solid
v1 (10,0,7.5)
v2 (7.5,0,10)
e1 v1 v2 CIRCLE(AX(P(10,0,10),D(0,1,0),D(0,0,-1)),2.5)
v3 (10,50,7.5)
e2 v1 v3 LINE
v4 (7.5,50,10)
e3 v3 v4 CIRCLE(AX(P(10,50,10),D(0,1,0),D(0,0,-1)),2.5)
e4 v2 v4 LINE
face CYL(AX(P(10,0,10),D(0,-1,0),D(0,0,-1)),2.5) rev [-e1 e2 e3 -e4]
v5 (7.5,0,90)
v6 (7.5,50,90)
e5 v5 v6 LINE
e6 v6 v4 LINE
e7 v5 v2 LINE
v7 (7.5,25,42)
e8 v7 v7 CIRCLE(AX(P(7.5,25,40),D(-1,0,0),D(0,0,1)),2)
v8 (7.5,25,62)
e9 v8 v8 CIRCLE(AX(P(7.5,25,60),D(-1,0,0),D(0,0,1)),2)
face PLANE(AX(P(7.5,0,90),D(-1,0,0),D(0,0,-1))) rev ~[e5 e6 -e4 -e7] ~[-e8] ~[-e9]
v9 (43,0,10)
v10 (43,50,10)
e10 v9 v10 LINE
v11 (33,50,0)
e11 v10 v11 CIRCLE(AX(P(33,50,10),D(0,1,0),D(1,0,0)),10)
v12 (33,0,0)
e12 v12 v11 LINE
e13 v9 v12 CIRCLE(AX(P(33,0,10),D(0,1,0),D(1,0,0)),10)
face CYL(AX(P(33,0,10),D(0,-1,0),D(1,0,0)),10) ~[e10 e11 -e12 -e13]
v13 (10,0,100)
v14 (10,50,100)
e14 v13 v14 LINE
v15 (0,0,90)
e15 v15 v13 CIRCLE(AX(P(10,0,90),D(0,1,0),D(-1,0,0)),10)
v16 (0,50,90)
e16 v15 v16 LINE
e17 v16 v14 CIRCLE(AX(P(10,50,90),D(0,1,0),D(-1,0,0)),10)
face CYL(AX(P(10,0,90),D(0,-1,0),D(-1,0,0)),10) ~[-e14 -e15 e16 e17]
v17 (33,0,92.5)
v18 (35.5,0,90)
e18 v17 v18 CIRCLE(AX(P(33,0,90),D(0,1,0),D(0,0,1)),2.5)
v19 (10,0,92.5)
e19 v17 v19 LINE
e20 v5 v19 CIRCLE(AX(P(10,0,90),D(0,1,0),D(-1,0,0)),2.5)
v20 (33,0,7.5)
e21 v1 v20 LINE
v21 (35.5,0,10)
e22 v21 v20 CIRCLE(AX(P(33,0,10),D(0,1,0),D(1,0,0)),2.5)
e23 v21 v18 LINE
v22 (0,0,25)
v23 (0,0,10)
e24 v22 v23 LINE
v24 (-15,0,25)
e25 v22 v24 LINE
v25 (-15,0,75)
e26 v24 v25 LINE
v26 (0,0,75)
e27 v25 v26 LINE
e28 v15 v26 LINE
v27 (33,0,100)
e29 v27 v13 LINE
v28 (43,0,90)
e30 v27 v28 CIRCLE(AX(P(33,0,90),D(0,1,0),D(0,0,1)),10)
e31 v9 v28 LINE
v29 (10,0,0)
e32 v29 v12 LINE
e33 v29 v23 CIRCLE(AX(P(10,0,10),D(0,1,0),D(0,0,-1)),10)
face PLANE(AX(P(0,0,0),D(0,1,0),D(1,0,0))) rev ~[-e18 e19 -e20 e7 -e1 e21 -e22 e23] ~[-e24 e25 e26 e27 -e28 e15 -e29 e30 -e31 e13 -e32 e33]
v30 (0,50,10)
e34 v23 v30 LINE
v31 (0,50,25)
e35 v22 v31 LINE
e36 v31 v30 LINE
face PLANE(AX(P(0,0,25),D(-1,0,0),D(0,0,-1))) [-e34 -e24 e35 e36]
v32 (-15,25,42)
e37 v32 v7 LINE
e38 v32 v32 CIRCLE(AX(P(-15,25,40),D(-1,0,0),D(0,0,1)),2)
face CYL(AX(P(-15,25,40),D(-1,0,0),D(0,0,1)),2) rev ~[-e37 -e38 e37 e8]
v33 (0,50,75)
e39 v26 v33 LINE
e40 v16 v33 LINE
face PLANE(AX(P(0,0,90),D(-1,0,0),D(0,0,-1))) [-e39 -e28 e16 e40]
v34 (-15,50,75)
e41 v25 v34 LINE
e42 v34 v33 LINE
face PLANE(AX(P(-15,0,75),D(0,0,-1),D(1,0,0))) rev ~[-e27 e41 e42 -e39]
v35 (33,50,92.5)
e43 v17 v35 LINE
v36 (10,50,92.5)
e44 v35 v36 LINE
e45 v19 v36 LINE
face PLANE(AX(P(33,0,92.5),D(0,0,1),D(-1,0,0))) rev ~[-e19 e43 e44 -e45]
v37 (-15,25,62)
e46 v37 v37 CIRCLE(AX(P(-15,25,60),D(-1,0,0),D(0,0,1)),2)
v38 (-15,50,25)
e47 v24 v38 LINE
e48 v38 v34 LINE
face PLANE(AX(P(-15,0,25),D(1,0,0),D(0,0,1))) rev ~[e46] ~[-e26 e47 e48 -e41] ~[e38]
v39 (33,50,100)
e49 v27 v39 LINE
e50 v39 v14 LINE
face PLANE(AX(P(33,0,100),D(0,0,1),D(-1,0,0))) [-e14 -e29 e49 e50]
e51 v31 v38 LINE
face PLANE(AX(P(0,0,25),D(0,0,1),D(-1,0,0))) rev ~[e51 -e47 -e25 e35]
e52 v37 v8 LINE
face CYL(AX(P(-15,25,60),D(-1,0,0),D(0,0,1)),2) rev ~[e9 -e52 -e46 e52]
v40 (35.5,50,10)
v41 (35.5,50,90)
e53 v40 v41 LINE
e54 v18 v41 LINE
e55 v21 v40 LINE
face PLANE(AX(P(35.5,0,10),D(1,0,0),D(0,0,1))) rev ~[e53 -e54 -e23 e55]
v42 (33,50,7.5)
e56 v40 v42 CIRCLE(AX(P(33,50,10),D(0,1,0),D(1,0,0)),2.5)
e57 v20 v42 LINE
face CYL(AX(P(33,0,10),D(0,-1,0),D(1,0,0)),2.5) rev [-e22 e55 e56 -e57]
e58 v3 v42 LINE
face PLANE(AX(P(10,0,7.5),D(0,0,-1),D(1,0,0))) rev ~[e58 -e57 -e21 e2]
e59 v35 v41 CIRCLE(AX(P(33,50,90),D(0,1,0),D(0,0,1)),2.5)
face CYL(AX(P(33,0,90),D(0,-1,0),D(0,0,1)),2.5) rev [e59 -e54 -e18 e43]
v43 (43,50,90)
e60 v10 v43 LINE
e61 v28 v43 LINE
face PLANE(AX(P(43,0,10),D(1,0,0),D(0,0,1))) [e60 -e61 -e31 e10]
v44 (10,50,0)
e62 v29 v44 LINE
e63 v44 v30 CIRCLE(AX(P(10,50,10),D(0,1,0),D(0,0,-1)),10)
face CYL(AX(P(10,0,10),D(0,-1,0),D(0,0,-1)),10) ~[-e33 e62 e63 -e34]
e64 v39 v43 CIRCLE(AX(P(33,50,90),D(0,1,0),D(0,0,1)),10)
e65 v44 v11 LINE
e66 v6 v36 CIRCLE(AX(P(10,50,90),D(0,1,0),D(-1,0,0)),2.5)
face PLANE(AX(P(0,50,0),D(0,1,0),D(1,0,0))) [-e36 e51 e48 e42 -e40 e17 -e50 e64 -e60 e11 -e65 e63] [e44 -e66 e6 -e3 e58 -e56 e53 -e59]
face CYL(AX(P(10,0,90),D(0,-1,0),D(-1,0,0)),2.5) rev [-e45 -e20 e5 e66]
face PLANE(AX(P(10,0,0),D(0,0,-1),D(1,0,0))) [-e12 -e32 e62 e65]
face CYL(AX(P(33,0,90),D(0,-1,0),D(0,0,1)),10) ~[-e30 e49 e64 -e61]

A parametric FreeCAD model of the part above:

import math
import FreeCAD as App
import Part
import Sketcher

doc = App.newDocument("Part")
body = doc.addObject("PartDesign::Body", "Body")

# Sketch on XZ plane
sketch1 = body.newObject("Sketcher::SketchObject", "Sketch")
sketch1.AttachmentSupport = (doc.getObject("XZ_Plane"), [""])
sketch1.MapMode = "FlatFace"
sketch1.addGeometry([
    Part.LineSegment(App.Vector(33, 0, 0), App.Vector(10, 0, 0)),  # 0
    Part.ArcOfCircle(Part.Circle(App.Vector(10, 10, 0), App.Vector(0, 0, 1), 10), math.radians(180), math.radians(270)),  # 1
    Part.LineSegment(App.Vector(0, 10, 0), App.Vector(0, 25, 0)),  # 2
    Part.LineSegment(App.Vector(0, 25, 0), App.Vector(-15, 25, 0)),  # 3
    Part.LineSegment(App.Vector(-15, 25, 0), App.Vector(-15, 75, 0)),  # 4
    Part.LineSegment(App.Vector(-15, 75, 0), App.Vector(0, 75, 0)),  # 5
    Part.LineSegment(App.Vector(0, 75, 0), App.Vector(0, 90, 0)),  # 6
    Part.ArcOfCircle(Part.Circle(App.Vector(10, 90, 0), App.Vector(0, 0, 1), 10), math.radians(90), math.radians(180)),  # 7
    Part.LineSegment(App.Vector(10, 100, 0), App.Vector(33, 100, 0)),  # 8
    Part.ArcOfCircle(Part.Circle(App.Vector(33, 90, 0), App.Vector(0, 0, 1), 10), math.radians(0), math.radians(90)),  # 9
    Part.LineSegment(App.Vector(43, 90, 0), App.Vector(43, 10, 0)),  # 10
    Part.ArcOfCircle(Part.Circle(App.Vector(33, 10, 0), App.Vector(0, 0, 1), 10), math.radians(-90), math.radians(0)),  # 11
    Part.ArcOfCircle(Part.Circle(App.Vector(10, 10, 0), App.Vector(0, 0, 1), 2.5), math.radians(180), math.radians(270)),  # 12
    Part.LineSegment(App.Vector(10, 7.5, 0), App.Vector(33, 7.5, 0)),  # 13
    Part.ArcOfCircle(Part.Circle(App.Vector(33, 10, 0), App.Vector(0, 0, 1), 2.5), math.radians(-90), math.radians(0)),  # 14
    Part.LineSegment(App.Vector(35.5, 10, 0), App.Vector(35.5, 90, 0)),  # 15
    Part.ArcOfCircle(Part.Circle(App.Vector(33, 90, 0), App.Vector(0, 0, 1), 2.5), math.radians(0), math.radians(90)),  # 16
    Part.LineSegment(App.Vector(33, 92.5, 0), App.Vector(10, 92.5, 0)),  # 17
    Part.ArcOfCircle(Part.Circle(App.Vector(10, 90, 0), App.Vector(0, 0, 1), 2.5), math.radians(90), math.radians(180)),  # 18
    Part.LineSegment(App.Vector(7.5, 90, 0), App.Vector(7.5, 10, 0)),  # 19
], False)
sketch1.addConstraint([
    Sketcher.Constraint("Tangent", 0, 2, 1, 2),
    Sketcher.Constraint("Tangent", 1, 1, 2, 1),
    Sketcher.Constraint("Coincident", 2, 2, 3, 1),
    Sketcher.Constraint("Coincident", 3, 2, 4, 1),
    Sketcher.Constraint("Coincident", 4, 2, 5, 1),
    Sketcher.Constraint("Coincident", 5, 2, 6, 1),
    Sketcher.Constraint("Tangent", 6, 2, 7, 2),
    Sketcher.Constraint("Tangent", 7, 1, 8, 1),
    Sketcher.Constraint("Tangent", 8, 2, 9, 2),
    Sketcher.Constraint("Tangent", 9, 1, 10, 1),
    Sketcher.Constraint("Tangent", 10, 2, 11, 2),
    Sketcher.Constraint("Tangent", 11, 1, 0, 1),
    Sketcher.Constraint("Tangent", 12, 2, 13, 1),
    Sketcher.Constraint("Tangent", 13, 2, 14, 1),
    Sketcher.Constraint("Tangent", 14, 2, 15, 1),
    Sketcher.Constraint("Tangent", 15, 2, 16, 1),
    Sketcher.Constraint("Tangent", 16, 2, 17, 1),
    Sketcher.Constraint("Tangent", 17, 2, 18, 1),
    Sketcher.Constraint("Tangent", 18, 2, 19, 1),
    Sketcher.Constraint("Tangent", 19, 2, 12, 1),
    Sketcher.Constraint("Horizontal", 0),
    Sketcher.Constraint("Vertical", 2),
    Sketcher.Constraint("Horizontal", 3),
    Sketcher.Constraint("Vertical", 4),
    Sketcher.Constraint("Horizontal", 5),
    Sketcher.Constraint("Vertical", 6),
    Sketcher.Constraint("Horizontal", 8),
    Sketcher.Constraint("Vertical", 10),
    Sketcher.Constraint("Horizontal", 13),
    Sketcher.Constraint("Vertical", 15),
    Sketcher.Constraint("Horizontal", 17),
    Sketcher.Constraint("Vertical", 19),
    Sketcher.Constraint("Coincident", 12, 3, 1, 3),
    Sketcher.Constraint("Coincident", 14, 3, 11, 3),
    Sketcher.Constraint("Coincident", 16, 3, 9, 3),
    Sketcher.Constraint("Coincident", 18, 3, 7, 3),
    Sketcher.Constraint("Equal", 1, 7),
    Sketcher.Constraint("Equal", 7, 9),
    Sketcher.Constraint("Equal", 9, 11),
    Sketcher.Constraint("PointOnObject", 0, 2, -1),
    Sketcher.Constraint("PointOnObject", 1, 1, -2),
    Sketcher.Constraint("Equal", 5, 2),
    Sketcher.Constraint("Equal", 2, 6),
    Sketcher.Constraint("DistanceX", -1, 1, 9, 1, 43.0),
    Sketcher.Constraint("Radius", 1, 10.0),
    Sketcher.Constraint("Radius", 12, 2.5),
    Sketcher.Constraint("DistanceX", 3, 2, 3, 1, 15.0),
    Sketcher.Constraint("DistanceY", 4, 1, 4, 2, 50.0),
])
pad1 = body.newObject("PartDesign::Pad", "Pad")
pad1.Profile = sketch1
pad1.Length = 50
pad1.Reversed = True

# Sketch on YZ plane
sketch2 = body.newObject("Sketcher::SketchObject", "Sketch001")
sketch2.AttachmentSupport = (doc.getObject("YZ_Plane"), [""])
sketch2.MapMode = "FlatFace"
sketch2.AttachmentOffset = App.Placement(App.Vector(0, 0, -15), App.Rotation())
sketch2.addGeometry([
    Part.Circle(App.Vector(25, 40, 0), App.Vector(0, 0, 1), 2),
    Part.Circle(App.Vector(25, 60, 0), App.Vector(0, 0, 1), 2),
], False)
sketch2.addConstraint([
    Sketcher.Constraint("Equal", 0, 1),
    Sketcher.Constraint("Vertical", 0, 3, 1, 3),
    Sketcher.Constraint("Diameter", 0, 4.0),
    Sketcher.Constraint("DistanceX", -1, 1, 0, 3, 25.0),
    Sketcher.Constraint("DistanceY", -1, 1, 0, 3, 40.0),
    Sketcher.Constraint("DistanceY", -1, 1, 1, 3, 60.0),
])
pocket1 = body.newObject("PartDesign::Pocket", "Pocket")
pocket1.Profile = sketch2
pocket1.Length = 45
pocket1.Reversed = True

doc.recompute()
